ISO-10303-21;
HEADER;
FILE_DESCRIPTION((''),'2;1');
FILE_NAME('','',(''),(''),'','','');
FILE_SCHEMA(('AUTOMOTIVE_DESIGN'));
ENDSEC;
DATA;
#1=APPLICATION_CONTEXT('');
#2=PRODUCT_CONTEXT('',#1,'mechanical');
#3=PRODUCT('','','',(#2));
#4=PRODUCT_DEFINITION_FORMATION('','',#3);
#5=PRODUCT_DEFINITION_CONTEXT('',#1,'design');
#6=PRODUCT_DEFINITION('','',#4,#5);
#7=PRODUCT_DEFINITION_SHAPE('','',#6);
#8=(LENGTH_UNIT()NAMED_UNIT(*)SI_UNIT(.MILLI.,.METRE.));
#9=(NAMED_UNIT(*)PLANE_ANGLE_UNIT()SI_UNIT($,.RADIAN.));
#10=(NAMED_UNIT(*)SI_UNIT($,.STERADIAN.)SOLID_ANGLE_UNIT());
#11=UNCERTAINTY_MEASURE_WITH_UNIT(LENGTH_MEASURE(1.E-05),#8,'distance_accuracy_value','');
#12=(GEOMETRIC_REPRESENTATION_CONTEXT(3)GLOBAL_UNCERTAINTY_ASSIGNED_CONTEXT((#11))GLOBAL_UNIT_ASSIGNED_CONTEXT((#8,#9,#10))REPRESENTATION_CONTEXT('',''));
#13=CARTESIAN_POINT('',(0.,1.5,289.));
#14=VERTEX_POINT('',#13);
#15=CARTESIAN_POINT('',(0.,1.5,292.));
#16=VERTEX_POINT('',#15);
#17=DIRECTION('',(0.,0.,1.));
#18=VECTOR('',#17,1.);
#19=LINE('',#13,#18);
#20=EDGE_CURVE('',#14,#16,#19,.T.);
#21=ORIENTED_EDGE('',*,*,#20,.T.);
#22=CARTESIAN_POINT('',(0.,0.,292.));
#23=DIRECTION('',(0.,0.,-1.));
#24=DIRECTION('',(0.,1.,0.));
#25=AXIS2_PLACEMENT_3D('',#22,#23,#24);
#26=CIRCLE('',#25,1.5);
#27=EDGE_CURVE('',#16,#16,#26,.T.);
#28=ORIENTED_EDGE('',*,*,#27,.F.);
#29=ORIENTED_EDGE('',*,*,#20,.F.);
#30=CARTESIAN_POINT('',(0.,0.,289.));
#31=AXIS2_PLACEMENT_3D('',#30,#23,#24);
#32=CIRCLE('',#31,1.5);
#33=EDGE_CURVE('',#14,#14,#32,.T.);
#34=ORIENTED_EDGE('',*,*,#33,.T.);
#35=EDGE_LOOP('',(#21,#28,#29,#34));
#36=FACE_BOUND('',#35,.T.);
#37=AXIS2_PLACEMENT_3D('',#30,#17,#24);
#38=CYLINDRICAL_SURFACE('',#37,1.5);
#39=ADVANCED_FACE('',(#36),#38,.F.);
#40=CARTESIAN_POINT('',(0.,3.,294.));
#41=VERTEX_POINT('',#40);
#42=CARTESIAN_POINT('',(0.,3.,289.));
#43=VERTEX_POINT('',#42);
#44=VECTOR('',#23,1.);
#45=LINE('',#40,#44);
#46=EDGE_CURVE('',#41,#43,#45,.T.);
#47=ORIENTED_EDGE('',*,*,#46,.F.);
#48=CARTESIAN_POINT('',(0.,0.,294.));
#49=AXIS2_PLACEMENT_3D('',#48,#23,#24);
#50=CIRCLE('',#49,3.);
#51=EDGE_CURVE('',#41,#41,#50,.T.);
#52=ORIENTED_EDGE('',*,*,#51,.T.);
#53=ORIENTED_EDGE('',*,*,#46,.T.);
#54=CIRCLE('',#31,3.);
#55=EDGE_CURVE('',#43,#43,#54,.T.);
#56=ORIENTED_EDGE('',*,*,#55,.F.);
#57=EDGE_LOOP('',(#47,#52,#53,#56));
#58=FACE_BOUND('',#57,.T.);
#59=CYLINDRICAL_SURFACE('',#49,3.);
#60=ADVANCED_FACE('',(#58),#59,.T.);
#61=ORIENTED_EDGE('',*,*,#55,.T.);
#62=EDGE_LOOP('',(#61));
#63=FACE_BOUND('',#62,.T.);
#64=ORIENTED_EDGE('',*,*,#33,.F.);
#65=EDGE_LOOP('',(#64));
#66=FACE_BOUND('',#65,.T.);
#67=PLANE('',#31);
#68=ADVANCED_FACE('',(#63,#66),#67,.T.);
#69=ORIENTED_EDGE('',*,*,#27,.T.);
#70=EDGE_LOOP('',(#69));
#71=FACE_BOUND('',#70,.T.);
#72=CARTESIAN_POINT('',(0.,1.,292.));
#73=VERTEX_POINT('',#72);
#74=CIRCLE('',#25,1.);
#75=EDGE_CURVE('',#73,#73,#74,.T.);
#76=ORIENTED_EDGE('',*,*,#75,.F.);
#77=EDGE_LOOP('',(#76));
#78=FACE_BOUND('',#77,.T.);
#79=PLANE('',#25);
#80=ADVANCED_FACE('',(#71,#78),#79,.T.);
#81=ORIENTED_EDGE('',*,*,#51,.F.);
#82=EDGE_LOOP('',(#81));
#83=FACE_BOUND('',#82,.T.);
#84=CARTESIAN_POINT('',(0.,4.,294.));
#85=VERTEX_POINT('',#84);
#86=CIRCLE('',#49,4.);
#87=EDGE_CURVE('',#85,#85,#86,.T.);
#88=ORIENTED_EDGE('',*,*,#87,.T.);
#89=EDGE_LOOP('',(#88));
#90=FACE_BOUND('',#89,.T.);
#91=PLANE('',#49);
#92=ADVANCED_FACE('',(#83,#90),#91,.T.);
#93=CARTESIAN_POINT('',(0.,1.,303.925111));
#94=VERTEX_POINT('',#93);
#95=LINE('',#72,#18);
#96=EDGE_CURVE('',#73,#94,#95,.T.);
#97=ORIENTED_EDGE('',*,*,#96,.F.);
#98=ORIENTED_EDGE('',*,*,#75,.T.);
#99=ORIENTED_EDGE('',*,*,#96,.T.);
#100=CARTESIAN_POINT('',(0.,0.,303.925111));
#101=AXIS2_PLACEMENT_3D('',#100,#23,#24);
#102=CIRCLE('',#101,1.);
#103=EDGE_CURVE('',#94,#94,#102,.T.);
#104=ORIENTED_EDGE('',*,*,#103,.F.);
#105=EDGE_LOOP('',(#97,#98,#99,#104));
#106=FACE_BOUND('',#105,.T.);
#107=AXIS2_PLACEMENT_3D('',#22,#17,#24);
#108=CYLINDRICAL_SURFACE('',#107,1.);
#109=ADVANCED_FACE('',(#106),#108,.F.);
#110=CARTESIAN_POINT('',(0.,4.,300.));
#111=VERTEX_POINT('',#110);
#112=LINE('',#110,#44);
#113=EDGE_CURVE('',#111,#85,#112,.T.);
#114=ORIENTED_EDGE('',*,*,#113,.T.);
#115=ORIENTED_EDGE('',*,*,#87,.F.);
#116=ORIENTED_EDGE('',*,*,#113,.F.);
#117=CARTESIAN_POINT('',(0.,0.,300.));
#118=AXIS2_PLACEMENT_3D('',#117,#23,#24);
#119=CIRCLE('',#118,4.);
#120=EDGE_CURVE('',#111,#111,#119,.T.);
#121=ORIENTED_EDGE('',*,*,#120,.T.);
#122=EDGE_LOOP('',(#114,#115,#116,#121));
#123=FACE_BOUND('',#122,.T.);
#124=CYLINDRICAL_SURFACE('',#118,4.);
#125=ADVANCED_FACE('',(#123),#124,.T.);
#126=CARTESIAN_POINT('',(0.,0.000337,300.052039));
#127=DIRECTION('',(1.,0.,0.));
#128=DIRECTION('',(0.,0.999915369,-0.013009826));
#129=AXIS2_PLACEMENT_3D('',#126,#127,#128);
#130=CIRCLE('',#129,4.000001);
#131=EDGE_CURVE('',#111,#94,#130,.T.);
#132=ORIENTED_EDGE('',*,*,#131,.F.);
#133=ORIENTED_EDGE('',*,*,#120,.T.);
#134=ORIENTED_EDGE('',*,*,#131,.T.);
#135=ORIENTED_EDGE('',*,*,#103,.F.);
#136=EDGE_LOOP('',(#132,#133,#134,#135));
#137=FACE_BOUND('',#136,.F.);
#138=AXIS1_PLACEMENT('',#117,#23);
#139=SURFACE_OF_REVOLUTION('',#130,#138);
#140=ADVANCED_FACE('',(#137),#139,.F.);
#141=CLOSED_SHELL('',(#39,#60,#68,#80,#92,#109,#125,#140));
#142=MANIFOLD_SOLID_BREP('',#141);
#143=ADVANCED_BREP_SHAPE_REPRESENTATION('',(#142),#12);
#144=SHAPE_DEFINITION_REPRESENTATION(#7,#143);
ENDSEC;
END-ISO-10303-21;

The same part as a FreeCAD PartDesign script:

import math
import FreeCAD as App
import Part
import Sketcher
from FreeCAD import Vector
Q = App.Units.Quantity

doc = App.newDocument("Part")
params = doc.addObject("Spreadsheet::Sheet", "Params")
for row, (alias, value) in enumerate([
    ("sketch1_radius", "4.000001 mm"),
    ("sketch1_width", "1 mm"),
    ("sketch1_height", "6 mm"),
    ("sketch1_height2", "3 mm"),
    ("sketch1_height3", "5 mm"),
    ("revolution_angle", "360 deg"),
], start=1):
    params.set(f"A{row}", alias)
    params.set(f"B{row}", "=" + value)
    params.setAlias(f"B{row}", alias)

body = doc.addObject("PartDesign::Body", "Body")

# Sketch on YZ plane
sketch1 = body.newObject("Sketcher::SketchObject", "Sketch")
sketch1.AttachmentSupport = (doc.getObject("YZ_Plane"), [""])
sketch1.MapMode = "FlatFace"
sketch1.addGeometry([
    Part.LineSegment(Vector(4, 294, 0), Vector(4, 300, 0)),  # 0
    Part.ArcOfCircle(Part.Circle(Vector(0.000337, 300.052039, 0), Vector(0, 0, 1), 4.000001), math.radians(-0.745429), math.radians(75.527482)),  # 1
    Part.LineSegment(Vector(1, 303.925111, 0), Vector(1, 292, 0)),  # 2
    Part.LineSegment(Vector(1, 292, 0), Vector(1.5, 292, 0)),  # 3
    Part.LineSegment(Vector(1.5, 292, 0), Vector(1.5, 289, 0)),  # 4
    Part.LineSegment(Vector(1.5, 289, 0), Vector(3, 289, 0)),  # 5
    Part.LineSegment(Vector(3, 289, 0), Vector(3, 294, 0)),  # 6
    Part.LineSegment(Vector(3, 294, 0), Vector(4, 294, 0)),  # 7
], False)
sketch1.addConstraint([
    Sketcher.Constraint("Coincident", 0, 2, 1, 1),
    Sketcher.Constraint("Coincident", 1, 2, 2, 1),
    Sketcher.Constraint("Coincident", 2, 2, 3, 1),
    Sketcher.Constraint("Coincident", 3, 2, 4, 1),
    Sketcher.Constraint("Coincident", 4, 2, 5, 1),
    Sketcher.Constraint("Coincident", 5, 2, 6, 1),
    Sketcher.Constraint("Coincident", 6, 2, 7, 1),
    Sketcher.Constraint("Coincident", 7, 2, 0, 1),
    Sketcher.Constraint("Vertical", 0),
    Sketcher.Constraint("Vertical", 2),
    Sketcher.Constraint("Horizontal", 3),
    Sketcher.Constraint("Vertical", 4),
    Sketcher.Constraint("Horizontal", 5),
    Sketcher.Constraint("Vertical", 6),
    Sketcher.Constraint("Horizontal", 7),
    Sketcher.Constraint("Radius", 1, Q("4.000001 mm")),
    Sketcher.Constraint("DistanceX", 7, 1, 7, 2, Q("1 mm")),
    Sketcher.Constraint("DistanceY", 0, 1, 0, 2, Q("6 mm")),
    Sketcher.Constraint("DistanceY", 4, 2, 4, 1, Q("3 mm")),
    Sketcher.Constraint("DistanceY", 6, 1, 6, 2, Q("5 mm")),
    Sketcher.Constraint("DistanceX", 3, 1, 3, 2, Q("0.5 mm")),
    Sketcher.Constraint("DistanceX", 5, 1, 5, 2, Q("1.5 mm")),
    Sketcher.Constraint("DistanceX", -1, 1, 0, 2, Q("4 mm")),
    Sketcher.Constraint("DistanceY", -1, 1, 0, 2, Q("300 mm")),
    Sketcher.Constraint("DistanceY", 2, 2, 2, 1, Q("11.925111 mm")),
])
sketch1.setExpression("Constraints[15]", "Params.sketch1_radius")
sketch1.setExpression("Constraints[16]", "Params.sketch1_width")
sketch1.setExpression("Constraints[17]", "Params.sketch1_height")
sketch1.setExpression("Constraints[18]", "Params.sketch1_height2")
sketch1.setExpression("Constraints[19]", "Params.sketch1_height3")
revolution = body.newObject("PartDesign::Revolution", "Revolution")
revolution.Profile = sketch1
revolution.ReferenceAxis = (sketch1, ["V_Axis"])
revolution.setExpression("Angle", "Params.revolution_angle")

doc.recompute()
